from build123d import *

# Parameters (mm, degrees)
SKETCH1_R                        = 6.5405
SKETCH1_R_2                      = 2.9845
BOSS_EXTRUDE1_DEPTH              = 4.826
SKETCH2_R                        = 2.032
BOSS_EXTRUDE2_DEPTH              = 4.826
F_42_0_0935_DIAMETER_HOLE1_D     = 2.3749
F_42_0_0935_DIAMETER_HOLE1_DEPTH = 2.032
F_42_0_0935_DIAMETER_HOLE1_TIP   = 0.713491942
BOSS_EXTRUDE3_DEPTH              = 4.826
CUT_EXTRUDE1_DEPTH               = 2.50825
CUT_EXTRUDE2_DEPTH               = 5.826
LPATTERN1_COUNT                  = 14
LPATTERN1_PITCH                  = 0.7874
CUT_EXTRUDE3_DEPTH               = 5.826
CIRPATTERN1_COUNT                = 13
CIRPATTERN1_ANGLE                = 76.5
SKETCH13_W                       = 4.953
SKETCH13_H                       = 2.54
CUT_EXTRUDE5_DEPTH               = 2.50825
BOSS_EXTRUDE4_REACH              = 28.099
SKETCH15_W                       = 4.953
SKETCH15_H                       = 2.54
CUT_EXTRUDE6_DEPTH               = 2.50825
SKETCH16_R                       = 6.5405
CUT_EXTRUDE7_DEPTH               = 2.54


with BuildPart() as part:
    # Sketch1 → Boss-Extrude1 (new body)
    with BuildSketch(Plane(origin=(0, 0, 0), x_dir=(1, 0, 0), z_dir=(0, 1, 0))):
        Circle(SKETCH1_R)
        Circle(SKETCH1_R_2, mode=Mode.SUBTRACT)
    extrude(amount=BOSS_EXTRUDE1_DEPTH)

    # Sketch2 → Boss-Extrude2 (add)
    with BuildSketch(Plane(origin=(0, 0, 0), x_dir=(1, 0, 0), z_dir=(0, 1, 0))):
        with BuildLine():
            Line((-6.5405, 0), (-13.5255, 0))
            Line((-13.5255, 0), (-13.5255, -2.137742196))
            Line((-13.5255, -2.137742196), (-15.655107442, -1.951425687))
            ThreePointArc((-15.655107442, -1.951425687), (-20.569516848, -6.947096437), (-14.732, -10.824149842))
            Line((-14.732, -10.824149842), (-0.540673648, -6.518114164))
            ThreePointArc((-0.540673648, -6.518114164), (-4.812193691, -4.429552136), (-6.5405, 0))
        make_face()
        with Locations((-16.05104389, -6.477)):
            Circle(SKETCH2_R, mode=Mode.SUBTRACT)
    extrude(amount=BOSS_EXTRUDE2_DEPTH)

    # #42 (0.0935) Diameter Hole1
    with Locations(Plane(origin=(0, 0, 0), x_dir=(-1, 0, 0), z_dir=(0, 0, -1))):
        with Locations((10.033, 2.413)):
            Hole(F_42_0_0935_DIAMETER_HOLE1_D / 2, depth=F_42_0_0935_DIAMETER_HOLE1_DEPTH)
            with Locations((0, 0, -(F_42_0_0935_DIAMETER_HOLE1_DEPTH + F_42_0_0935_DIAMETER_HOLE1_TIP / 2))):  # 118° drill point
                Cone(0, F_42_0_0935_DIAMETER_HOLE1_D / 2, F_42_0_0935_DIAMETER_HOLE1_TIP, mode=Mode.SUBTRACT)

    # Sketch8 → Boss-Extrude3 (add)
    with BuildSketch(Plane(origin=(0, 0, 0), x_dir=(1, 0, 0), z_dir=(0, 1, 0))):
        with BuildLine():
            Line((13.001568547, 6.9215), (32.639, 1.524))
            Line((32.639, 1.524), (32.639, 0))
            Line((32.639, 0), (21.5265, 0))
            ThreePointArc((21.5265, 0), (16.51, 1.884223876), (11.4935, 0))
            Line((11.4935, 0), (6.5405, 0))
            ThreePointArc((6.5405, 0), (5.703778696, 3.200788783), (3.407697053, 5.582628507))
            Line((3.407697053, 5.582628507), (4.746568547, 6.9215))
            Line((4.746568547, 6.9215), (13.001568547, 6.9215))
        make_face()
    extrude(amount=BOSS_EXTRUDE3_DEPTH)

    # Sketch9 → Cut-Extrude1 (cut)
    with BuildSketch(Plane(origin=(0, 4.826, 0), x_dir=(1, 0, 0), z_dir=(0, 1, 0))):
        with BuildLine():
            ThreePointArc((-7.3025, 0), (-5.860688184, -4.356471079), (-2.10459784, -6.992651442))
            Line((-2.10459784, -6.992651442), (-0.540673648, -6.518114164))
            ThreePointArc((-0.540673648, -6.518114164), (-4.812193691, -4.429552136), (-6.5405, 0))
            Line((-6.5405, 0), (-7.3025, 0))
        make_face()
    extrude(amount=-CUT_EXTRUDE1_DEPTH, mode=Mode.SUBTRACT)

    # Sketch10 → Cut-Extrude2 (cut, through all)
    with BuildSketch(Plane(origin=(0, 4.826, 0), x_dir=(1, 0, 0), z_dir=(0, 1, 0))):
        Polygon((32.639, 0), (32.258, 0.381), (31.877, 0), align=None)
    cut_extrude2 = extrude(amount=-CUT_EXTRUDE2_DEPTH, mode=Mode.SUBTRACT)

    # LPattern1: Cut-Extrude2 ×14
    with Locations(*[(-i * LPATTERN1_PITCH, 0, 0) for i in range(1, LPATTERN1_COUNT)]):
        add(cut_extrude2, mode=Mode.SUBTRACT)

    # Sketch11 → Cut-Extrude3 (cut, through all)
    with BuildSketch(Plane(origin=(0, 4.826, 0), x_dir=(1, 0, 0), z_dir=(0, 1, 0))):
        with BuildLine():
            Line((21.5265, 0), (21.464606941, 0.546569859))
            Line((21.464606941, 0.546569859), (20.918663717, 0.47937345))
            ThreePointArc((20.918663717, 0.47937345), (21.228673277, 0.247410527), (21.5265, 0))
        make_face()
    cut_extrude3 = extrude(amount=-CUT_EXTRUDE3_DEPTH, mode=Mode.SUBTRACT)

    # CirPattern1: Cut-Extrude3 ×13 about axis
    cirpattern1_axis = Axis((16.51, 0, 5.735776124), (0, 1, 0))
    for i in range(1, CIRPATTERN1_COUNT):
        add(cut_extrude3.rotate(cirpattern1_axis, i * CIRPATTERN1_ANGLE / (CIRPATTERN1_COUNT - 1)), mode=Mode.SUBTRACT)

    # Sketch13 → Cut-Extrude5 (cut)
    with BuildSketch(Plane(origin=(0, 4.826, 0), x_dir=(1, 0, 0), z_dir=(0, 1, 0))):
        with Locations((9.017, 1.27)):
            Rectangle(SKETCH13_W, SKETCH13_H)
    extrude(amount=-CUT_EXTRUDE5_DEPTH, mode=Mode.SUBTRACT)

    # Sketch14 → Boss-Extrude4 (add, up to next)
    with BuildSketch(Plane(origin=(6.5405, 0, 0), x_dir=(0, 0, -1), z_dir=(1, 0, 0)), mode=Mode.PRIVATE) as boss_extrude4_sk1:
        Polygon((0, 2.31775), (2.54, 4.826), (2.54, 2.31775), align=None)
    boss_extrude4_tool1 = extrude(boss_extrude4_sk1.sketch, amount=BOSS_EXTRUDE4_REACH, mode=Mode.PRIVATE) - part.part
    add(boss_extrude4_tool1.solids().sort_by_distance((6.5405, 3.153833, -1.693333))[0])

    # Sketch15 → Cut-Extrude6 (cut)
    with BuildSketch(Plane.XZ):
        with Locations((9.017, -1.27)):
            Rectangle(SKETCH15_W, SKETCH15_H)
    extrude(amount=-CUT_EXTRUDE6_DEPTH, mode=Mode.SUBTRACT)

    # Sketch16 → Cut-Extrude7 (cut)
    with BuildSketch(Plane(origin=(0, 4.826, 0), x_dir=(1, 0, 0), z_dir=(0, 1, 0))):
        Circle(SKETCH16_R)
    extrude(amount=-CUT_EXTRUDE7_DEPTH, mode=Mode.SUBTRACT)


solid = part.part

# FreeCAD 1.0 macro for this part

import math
import FreeCAD as App
import Part
import Sketcher
from FreeCAD import Vector
Q = App.Units.Quantity

doc = App.newDocument("Part")
body = doc.addObject("PartDesign::Body", "Body")

# Sketch on XZ plane
sketch1 = body.newObject("Sketcher::SketchObject", "Sketch")
sketch1.AttachmentSupport = (doc.getObject("XZ_Plane"), [""])
sketch1.MapMode = "FlatFace"
sketch1.addGeometry([
    Part.Circle(Vector(0, 0, 0), Vector(0, 0, 1), 6.5),
    Part.Circle(Vector(0, 0, 0), Vector(0, 0, 1), 3),
], False)
sketch1.addConstraint([
    Sketcher.Constraint("Coincident", 0, 3, -1, 1),
    Sketcher.Constraint("Coincident", 1, 3, -1, 1),
    Sketcher.Constraint("Diameter", 0, Q("0.515 in")),
    Sketcher.Constraint("Diameter", 1, Q("0.235 in")),
])
pad1 = body.newObject("PartDesign::Pad", "Pad")
pad1.Profile = sketch1
pad1.Length = Q("0.19 in")
pad1.Reversed = True

# Sketch on XZ plane
sketch2 = body.newObject("Sketcher::SketchObject", "Sketch001")
sketch2.AttachmentSupport = (doc.getObject("XZ_Plane"), [""])
sketch2.MapMode = "FlatFace"
sketch2.addGeometry([
    Part.LineSegment(Vector(-6.5, 0, 0), Vector(-13.5, 0, 0)),  # 0
    Part.LineSegment(Vector(-13.5, 0, 0), Vector(-13.5, 2.1, 0)),  # 1
    Part.LineSegment(Vector(-13.5, 2.1, 0), Vector(-15.7, 2, 0)),  # 2
    Part.ArcOfCircle(Part.Circle(Vector(-16.1, 6.5, 0), Vector(0, 0, 1), 4.5), math.radians(73), math.radians(275)),  # 3
    Part.LineSegment(Vector(-14.7, 10.8, 0), Vector(-0.5, 6.5, 0)),  # 4
    Part.ArcOfCircle(Part.Circle(Vector(0, 0, 0), Vector(0, 0, 1), 6.5), math.radians(95), math.radians(180)),  # 5
    Part.Circle(Vector(-16.1, 6.5, 0), Vector(0, 0, 1), 2),  # 6
], False)
sketch2.addConstraint([
    Sketcher.Constraint("Coincident", 0, 2, 1, 1),
    Sketcher.Constraint("Coincident", 1, 2, 2, 1),
    Sketcher.Constraint("Tangent", 2, 2, 3, 2),
    Sketcher.Constraint("Tangent", 3, 1, 4, 1),
    Sketcher.Constraint("Coincident", 4, 2, 5, 1),
    Sketcher.Constraint("Coincident", 5, 2, 0, 1),
    Sketcher.Constraint("Horizontal", 0),
    Sketcher.Constraint("Vertical", 1),
    Sketcher.Constraint("Coincident", 5, 3, -1, 1),
    Sketcher.Constraint("Coincident", 6, 3, 3, 3),
    Sketcher.Constraint("PointOnObject", 0, 2, -1),
    Sketcher.Constraint("Diameter", 6, Q("0.16 in")),
    Sketcher.Constraint("Angle", 2, Q("-175 deg")),
    Sketcher.Constraint("Radius", 5, Q("0.2575 in")),
    Sketcher.Constraint("DistanceX", 0, 2, 0, 1, Q("0.275 in")),
    Sketcher.Constraint("DistanceX", 3, 1, -1, 1, Q("0.58 in")),
    Sketcher.Constraint("DistanceY", -1, 1, 3, 3, Q("0.255 in")),
    Sketcher.Constraint("Radius", 3, 4.542861),
    Sketcher.Constraint("Distance", 4, 14.830229),
])
pad2 = body.newObject("PartDesign::Pad", "Pad001")
pad2.Profile = sketch2
pad2.Length = Q("0.19 in")
pad2.Reversed = True

# Sketch on XY plane
sketch3 = body.newObject("Sketcher::SketchObject", "Sketch002")
sketch3.AttachmentSupport = (doc.getObject("XY_Plane"), [""])
sketch3.MapMode = "FlatFace"
sketch3.addGeometry(Part.Circle(Vector(-10, 2.4, 0), Vector(0, 0, 1), 1.2), False)
sketch3.addConstraint([
    Sketcher.Constraint("Diameter", 0, Q("0.0935 in")),
    Sketcher.Constraint("DistanceX", 0, 3, -1, 1, Q("0.395 in")),
    Sketcher.Constraint("DistanceY", -1, 1, 0, 3, Q("0.095 in")),
])
doc.recompute()
hole = body.newObject("PartDesign::Hole", "Hole")
hole.Profile = sketch3
hole.ThreadType = "None"
hole.Diameter = Q("0.0935 in")
hole.DepthType = "Dimension"
hole.Depth = Q("0.08 in")
hole.DrillPoint = "Angled"
hole.DrillPointAngle = 118
hole.Reversed = True

# Sketch on XZ plane
sketch4 = body.newObject("Sketcher::SketchObject", "Sketch003")
sketch4.AttachmentSupport = (doc.getObject("XZ_Plane"), [""])
sketch4.MapMode = "FlatFace"
sketch4.addGeometry([
    Part.LineSegment(Vector(32.6, -1.5, 0), Vector(13, -6.9, 0)),  # 0
    Part.LineSegment(Vector(13, -6.9, 0), Vector(4.7, -6.9, 0)),  # 1
    Part.LineSegment(Vector(4.7, -6.9, 0), Vector(3.4, -5.6, 0)),  # 2
    Part.ArcOfCircle(Part.Circle(Vector(0, 0, 0), Vector(0, 0, 1), 6.5), math.radians(-59), math.radians(0)),  # 3
    Part.LineSegment(Vector(6.5, 0, 0), Vector(11.5, 0, 0)),  # 4
    Part.ArcOfCircle(Part.Circle(Vector(16.5, 5.7, 0), Vector(0, 0, 1), 7.6), math.radians(-131), math.radians(-49)),  # 5
    Part.LineSegment(Vector(21.5, 0, 0), Vector(32.6, 0, 0)),  # 6
    Part.LineSegment(Vector(32.6, 0, 0), Vector(32.6, -1.5, 0)),  # 7
], False)
sketch4.addConstraint([
    Sketcher.Constraint("Coincident", 0, 2, 1, 1),
    Sketcher.Constraint("Coincident", 1, 2, 2, 1),
    Sketcher.Constraint("Coincident", 2, 2, 3, 1),
    Sketcher.Constraint("Coincident", 3, 2, 4, 1),
    Sketcher.Constraint("Coincident", 4, 2, 5, 1),
    Sketcher.Constraint("Coincident", 5, 2, 6, 1),
    Sketcher.Constraint("Coincident", 6, 2, 7, 1),
    Sketcher.Constraint("Coincident", 7, 2, 0, 1),
    Sketcher.Constraint("Horizontal", 1),
    Sketcher.Constraint("Horizontal", 4),
    Sketcher.Constraint("Horizontal", 6),
    Sketcher.Constraint("Vertical", 7),
    Sketcher.Constraint("Coincident", 3, 3, -1, 1),
    Sketcher.Constraint("PointOnObject", 3, 2, -1),
    Sketcher.Constraint("PointOnObject", 5, 2, -1),
    Sketcher.Constraint("Radius", 5, Q("0.3 in")),
    Sketcher.Constraint("Angle", 2, Q("135 deg")),
    Sketcher.Constraint("DistanceY", 7, 2, 7, 1, Q("0.06 in")),
    Sketcher.Constraint("Radius", 3, Q("0.2575 in")),
    Sketcher.Constraint("DistanceX", 1, 2, 1, 1, Q("0.325 in")),
    Sketcher.Constraint("DistanceX", 4, 1, 4, 2, Q("0.195 in")),
    Sketcher.Constraint("DistanceX", 6, 1, 6, 2, Q("0.4375 in")),
    Sketcher.Constraint("DistanceX", -1, 1, 5, 3, Q("0.65 in")),
    Sketcher.Constraint("DistanceY", 0, 2, -1, 1, Q("0.2725 in")),
    Sketcher.Constraint("Distance", 0, 20.3657),
])
pad3 = body.newObject("PartDesign::Pad", "Pad002")
pad3.Profile = sketch4
pad3.Length = Q("0.19 in")
pad3.Reversed = True

# Sketch on XZ plane
sketch5 = body.newObject("Sketcher::SketchObject", "Sketch004")
sketch5.AttachmentSupport = (doc.getObject("XZ_Plane"), [""])
sketch5.MapMode = "FlatFace"
sketch5.AttachmentOffset = App.Placement(Vector(0, 0, -0.19 * 25.4), App.Rotation())
sketch5.addGeometry([
    Part.ArcOfCircle(Part.Circle(Vector(0, 0, 0), Vector(0, 0, 1), 7.3), math.radians(107), math.radians(180)),
    Part.LineSegment(Vector(-2.1, 7, 0), Vector(-0.5, 6.5, 0)),
    Part.ArcOfCircle(Part.Circle(Vector(0, 0, 0), Vector(0, 0, 1), 6.5), math.radians(95), math.radians(180)),
    Part.LineSegment(Vector(-6.5, 0, 0), Vector(-7.3, 0, 0)),
], False)
sketch5.addConstraint([
    Sketcher.Constraint("Coincident", 0, 1, 1, 1),
    Sketcher.Constraint("Coincident", 1, 2, 2, 1),
    Sketcher.Constraint("Coincident", 2, 2, 3, 1),
    Sketcher.Constraint("Coincident", 3, 2, 0, 2),
    Sketcher.Constraint("Horizontal", 3),
    Sketcher.Constraint("Coincident", 0, 3, -1, 1),
    Sketcher.Constraint("Coincident", 2, 3, -1, 1),
    Sketcher.Constraint("PointOnObject", 2, 2, -1),
    Sketcher.Constraint("DistanceX", 3, 2, 3, 1, Q("0.03 in")),
    Sketcher.Constraint("Radius", 0, Q("0.2875 in")),
    Sketcher.Constraint("DistanceY", -1, 1, 0, 1, 6.992651),
    Sketcher.Constraint("Distance", 1, 1.634333),
])
pocket1 = body.newObject("PartDesign::Pocket", "Pocket")
pocket1.Profile = sketch5
pocket1.Length = 2.50825
pocket1.Reversed = True

# Sketch on XZ plane
sketch6 = body.newObject("Sketcher::SketchObject", "Sketch005")
sketch6.AttachmentSupport = (doc.getObject("XZ_Plane"), [""])
sketch6.MapMode = "FlatFace"
sketch6.AttachmentOffset = App.Placement(Vector(0, 0, -0.19 * 25.4), App.Rotation())
sketch6.addGeometry([
    Part.LineSegment(Vector(32.6, 0, 0), Vector(32.3, -0.4, 0)),
    Part.LineSegment(Vector(32.3, -0.4, 0), Vector(31.9, 0, 0)),
    Part.LineSegment(Vector(31.9, 0, 0), Vector(32.6, 0, 0)),
], False)
sketch6.addConstraint([
    Sketcher.Constraint("Coincident", 0, 2, 1, 1),
    Sketcher.Constraint("Coincident", 1, 2, 2, 1),
    Sketcher.Constraint("Coincident", 2, 2, 0, 1),
    Sketcher.Constraint("Horizontal", 2),
    Sketcher.Constraint("PointOnObject", 1, 2, -1),
    Sketcher.Constraint("Perpendicular", 0, 1),
    Sketcher.Constraint("Equal", 0, 1),
    Sketcher.Constraint("DistanceX", 2, 1, 2, 2, Q("0.03 in")),
    Sketcher.Constraint("DistanceX", -1, 1, 0, 2, Q("1.27 in")),
])
pocket2 = body.newObject("PartDesign::Pocket", "Pocket001")
pocket2.Profile = sketch6
pocket2.Type = "ThroughAll"
pocket2.Reversed = True
doc.recompute()

linearpattern = body.newObject("PartDesign::LinearPattern", "LinearPattern")
linearpattern.Originals = [pocket2]
linearpattern.Direction = (doc.getObject("X_Axis"), [""])
linearpattern.Mode = "offset"
linearpattern.Offset = Q("0.031 in")
linearpattern.Occurrences = 14
linearpattern.Reversed = True
body.Tip = linearpattern

# Sketch on XZ plane
sketch7 = body.newObject("Sketcher::SketchObject", "Sketch006")
sketch7.AttachmentSupport = (doc.getObject("XZ_Plane"), [""])
sketch7.MapMode = "FlatFace"
sketch7.AttachmentOffset = App.Placement(Vector(0, 0, -0.19 * 25.4), App.Rotation())
sketch7.addGeometry([
    Part.LineSegment(Vector(21.5, 0, 0), Vector(21.5, -0.5, 0)),
    Part.LineSegment(Vector(21.5, -0.5, 0), Vector(20.9, -0.5, 0)),
    Part.ArcOfCircle(Part.Circle(Vector(16.5, 5.7, 0), Vector(0, 0, 1), 7.6), math.radians(-54.65), math.radians(-48.83)),
], False)
sketch7.addConstraint([
    Sketcher.Constraint("Coincident", 0, 2, 1, 1),
    Sketcher.Constraint("Coincident", 1, 2, 2, 1),
    Sketcher.Constraint("Coincident", 2, 2, 0, 1),
    Sketcher.Constraint("PointOnObject", 2, 2, -1),
    Sketcher.Constraint("Equal", 0, 1),
    Sketcher.Constraint("Radius", 2, Q("0.3 in")),
    Sketcher.Constraint("DistanceX", -1, 1, 2, 3, Q("0.65 in")),
    Sketcher.Constraint("DistanceX", -1, 1, 2, 2, Q("0.8475 in")),
    Sketcher.Constraint("DistanceY", 0, 2, -1, 1, 0.54657),
    Sketcher.Constraint("DistanceY", 1, 2, 2, 3, 6.21515),
])
pocket3 = body.newObject("PartDesign::Pocket", "Pocket002")
pocket3.Profile = sketch7
pocket3.Type = "ThroughAll"
pocket3.Reversed = True
doc.recompute()

datumline = body.newObject("PartDesign::Line", "DatumLine")
datumline.Placement = App.Placement(Vector(16.51, 0, 5.735776), App.Rotation(Vector(0, 0, 1), Vector(0, 1, 0)))
polarpattern = body.newObject("PartDesign::PolarPattern", "PolarPattern")
polarpattern.Originals = [pocket3]
polarpattern.Axis = (datumline, [""])
polarpattern.Angle = 76.5
polarpattern.Occurrences = 13
body.Tip = polarpattern

# Sketch on XZ plane
sketch8 = body.newObject("Sketcher::SketchObject", "Sketch007")
sketch8.AttachmentSupport = (doc.getObject("XZ_Plane"), [""])
sketch8.MapMode = "FlatFace"
sketch8.AttachmentOffset = App.Placement(Vector(0, 0, -0.19 * 25.4), App.Rotation())
sketch8.addGeometry([
    Part.LineSegment(Vector(6.5, -2.5, 0), Vector(6.5, 0, 0)),
    Part.LineSegment(Vector(6.5, 0, 0), Vector(11.5, 0, 0)),
    Part.LineSegment(Vector(11.5, 0, 0), Vector(11.5, -2.5, 0)),
    Part.LineSegment(Vector(11.5, -2.5, 0), Vector(6.5, -2.5, 0)),
], False)
sketch8.addConstraint([
    Sketcher.Constraint("Coincident", 0, 2, 1, 1),
    Sketcher.Constraint("Coincident", 1, 2, 2, 1),
    Sketcher.Constraint("Coincident", 2, 2, 3, 1),
    Sketcher.Constraint("Coincident", 3, 2, 0, 1),
    Sketcher.Constraint("Vertical", 0),
    Sketcher.Constraint("Horizontal", 1),
    Sketcher.Constraint("Vertical", 2),
    Sketcher.Constraint("Horizontal", 3),
    Sketcher.Constraint("PointOnObject", 0, 2, -1),
    Sketcher.Constraint("DistanceY", 0, 1, 0, 2, Q("0.1 in")),
    Sketcher.Constraint("DistanceX", 1, 1, 1, 2, Q("0.195 in")),
    Sketcher.Constraint("DistanceX", -1, 1, 0, 2, Q("0.2575 in")),
])
pocket4 = body.newObject("PartDesign::Pocket", "Pocket003")
pocket4.Profile = sketch8
pocket4.Length = 2.50825
pocket4.Reversed = True

# Sketch on YZ plane
sketch9 = body.newObject("Sketcher::SketchObject", "Sketch008")
sketch9.AttachmentSupport = (doc.getObject("YZ_Plane"), [""])
sketch9.MapMode = "FlatFace"
sketch9.AttachmentOffset = App.Placement(Vector(0, 0, 0.2575 * 25.4), App.Rotation())
sketch9.addGeometry([
    Part.LineSegment(Vector(4.8, -2.5, 0), Vector(2.3, 0, 0)),
    Part.LineSegment(Vector(2.3, 0, 0), Vector(2.3, -2.5, 0)),
    Part.LineSegment(Vector(2.3, -2.5, 0), Vector(4.8, -2.5, 0)),
], False)
sketch9.addConstraint([
    Sketcher.Constraint("Coincident", 0, 2, 1, 1),
    Sketcher.Constraint("Coincident", 1, 2, 2, 1),
    Sketcher.Constraint("Coincident", 2, 2, 0, 1),
    Sketcher.Constraint("Vertical", 1),
    Sketcher.Constraint("Horizontal", 2),
    Sketcher.Constraint("PointOnObject", 0, 2, -1),
    Sketcher.Constraint("DistanceY", 1, 2, 1, 1, Q("0.1 in")),
    Sketcher.Constraint("DistanceX", -1, 1, 2, 2, Q("0.19 in")),
    Sketcher.Constraint("DistanceX", 2, 1, 2, 2, 2.50825),
])
pad4 = body.newObject("PartDesign::Pad", "Pad003")
pad4.Profile = sketch9
pad4.Type = "UpToFirst"

# Sketch on XZ plane
sketch10 = body.newObject("Sketcher::SketchObject", "Sketch009")
sketch10.AttachmentSupport = (doc.getObject("XZ_Plane"), [""])
sketch10.MapMode = "FlatFace"
sketch10.addGeometry([
    Part.LineSegment(Vector(6.5, 0, 0), Vector(6.5, -2.5, 0)),
    Part.LineSegment(Vector(6.5, -2.5, 0), Vector(11.5, -2.5, 0)),
    Part.LineSegment(Vector(11.5, -2.5, 0), Vector(11.5, 0, 0)),
    Part.LineSegment(Vector(11.5, 0, 0), Vector(6.5, 0, 0)),
], False)
sketch10.addConstraint([
    Sketcher.Constraint("Coincident", 0, 2, 1, 1),
    Sketcher.Constraint("Coincident", 1, 2, 2, 1),
    Sketcher.Constraint("Coincident", 2, 2, 3, 1),
    Sketcher.Constraint("Coincident", 3, 2, 0, 1),
    Sketcher.Constraint("Vertical", 0),
    Sketcher.Constraint("Horizontal", 1),
    Sketcher.Constraint("Vertical", 2),
    Sketcher.Constraint("Horizontal", 3),
    Sketcher.Constraint("PointOnObject", 2, 2, -1),
    Sketcher.Constraint("DistanceY", 0, 2, 0, 1, Q("0.1 in")),
    Sketcher.Constraint("DistanceX", 1, 1, 1, 2, Q("0.195 in")),
    Sketcher.Constraint("DistanceX", -1, 1, 0, 2, Q("0.2575 in")),
])
pocket5 = body.newObject("PartDesign::Pocket", "Pocket004")
pocket5.Profile = sketch10
pocket5.Length = 2.50825

# Sketch on XZ plane
sketch11 = body.newObject("Sketcher::SketchObject", "Sketch010")
sketch11.AttachmentSupport = (doc.getObject("XZ_Plane"), [""])
sketch11.MapMode = "FlatFace"
sketch11.AttachmentOffset = App.Placement(Vector(0, 0, -0.19 * 25.4), App.Rotation())
sketch11.addGeometry(Part.Circle(Vector(0, 0, 0), Vector(0, 0, 1), 7), False)
sketch11.addConstraint([
    Sketcher.Constraint("Coincident", 0, 3, -1, 1),
    Sketcher.Constraint("Diameter", 0, Q("0.515 in")),
])
pocket6 = body.newObject("PartDesign::Pocket", "Pocket005")
pocket6.Profile = sketch11
pocket6.Length = Q("0.1 in")
pocket6.Reversed = True

doc.recompute()
